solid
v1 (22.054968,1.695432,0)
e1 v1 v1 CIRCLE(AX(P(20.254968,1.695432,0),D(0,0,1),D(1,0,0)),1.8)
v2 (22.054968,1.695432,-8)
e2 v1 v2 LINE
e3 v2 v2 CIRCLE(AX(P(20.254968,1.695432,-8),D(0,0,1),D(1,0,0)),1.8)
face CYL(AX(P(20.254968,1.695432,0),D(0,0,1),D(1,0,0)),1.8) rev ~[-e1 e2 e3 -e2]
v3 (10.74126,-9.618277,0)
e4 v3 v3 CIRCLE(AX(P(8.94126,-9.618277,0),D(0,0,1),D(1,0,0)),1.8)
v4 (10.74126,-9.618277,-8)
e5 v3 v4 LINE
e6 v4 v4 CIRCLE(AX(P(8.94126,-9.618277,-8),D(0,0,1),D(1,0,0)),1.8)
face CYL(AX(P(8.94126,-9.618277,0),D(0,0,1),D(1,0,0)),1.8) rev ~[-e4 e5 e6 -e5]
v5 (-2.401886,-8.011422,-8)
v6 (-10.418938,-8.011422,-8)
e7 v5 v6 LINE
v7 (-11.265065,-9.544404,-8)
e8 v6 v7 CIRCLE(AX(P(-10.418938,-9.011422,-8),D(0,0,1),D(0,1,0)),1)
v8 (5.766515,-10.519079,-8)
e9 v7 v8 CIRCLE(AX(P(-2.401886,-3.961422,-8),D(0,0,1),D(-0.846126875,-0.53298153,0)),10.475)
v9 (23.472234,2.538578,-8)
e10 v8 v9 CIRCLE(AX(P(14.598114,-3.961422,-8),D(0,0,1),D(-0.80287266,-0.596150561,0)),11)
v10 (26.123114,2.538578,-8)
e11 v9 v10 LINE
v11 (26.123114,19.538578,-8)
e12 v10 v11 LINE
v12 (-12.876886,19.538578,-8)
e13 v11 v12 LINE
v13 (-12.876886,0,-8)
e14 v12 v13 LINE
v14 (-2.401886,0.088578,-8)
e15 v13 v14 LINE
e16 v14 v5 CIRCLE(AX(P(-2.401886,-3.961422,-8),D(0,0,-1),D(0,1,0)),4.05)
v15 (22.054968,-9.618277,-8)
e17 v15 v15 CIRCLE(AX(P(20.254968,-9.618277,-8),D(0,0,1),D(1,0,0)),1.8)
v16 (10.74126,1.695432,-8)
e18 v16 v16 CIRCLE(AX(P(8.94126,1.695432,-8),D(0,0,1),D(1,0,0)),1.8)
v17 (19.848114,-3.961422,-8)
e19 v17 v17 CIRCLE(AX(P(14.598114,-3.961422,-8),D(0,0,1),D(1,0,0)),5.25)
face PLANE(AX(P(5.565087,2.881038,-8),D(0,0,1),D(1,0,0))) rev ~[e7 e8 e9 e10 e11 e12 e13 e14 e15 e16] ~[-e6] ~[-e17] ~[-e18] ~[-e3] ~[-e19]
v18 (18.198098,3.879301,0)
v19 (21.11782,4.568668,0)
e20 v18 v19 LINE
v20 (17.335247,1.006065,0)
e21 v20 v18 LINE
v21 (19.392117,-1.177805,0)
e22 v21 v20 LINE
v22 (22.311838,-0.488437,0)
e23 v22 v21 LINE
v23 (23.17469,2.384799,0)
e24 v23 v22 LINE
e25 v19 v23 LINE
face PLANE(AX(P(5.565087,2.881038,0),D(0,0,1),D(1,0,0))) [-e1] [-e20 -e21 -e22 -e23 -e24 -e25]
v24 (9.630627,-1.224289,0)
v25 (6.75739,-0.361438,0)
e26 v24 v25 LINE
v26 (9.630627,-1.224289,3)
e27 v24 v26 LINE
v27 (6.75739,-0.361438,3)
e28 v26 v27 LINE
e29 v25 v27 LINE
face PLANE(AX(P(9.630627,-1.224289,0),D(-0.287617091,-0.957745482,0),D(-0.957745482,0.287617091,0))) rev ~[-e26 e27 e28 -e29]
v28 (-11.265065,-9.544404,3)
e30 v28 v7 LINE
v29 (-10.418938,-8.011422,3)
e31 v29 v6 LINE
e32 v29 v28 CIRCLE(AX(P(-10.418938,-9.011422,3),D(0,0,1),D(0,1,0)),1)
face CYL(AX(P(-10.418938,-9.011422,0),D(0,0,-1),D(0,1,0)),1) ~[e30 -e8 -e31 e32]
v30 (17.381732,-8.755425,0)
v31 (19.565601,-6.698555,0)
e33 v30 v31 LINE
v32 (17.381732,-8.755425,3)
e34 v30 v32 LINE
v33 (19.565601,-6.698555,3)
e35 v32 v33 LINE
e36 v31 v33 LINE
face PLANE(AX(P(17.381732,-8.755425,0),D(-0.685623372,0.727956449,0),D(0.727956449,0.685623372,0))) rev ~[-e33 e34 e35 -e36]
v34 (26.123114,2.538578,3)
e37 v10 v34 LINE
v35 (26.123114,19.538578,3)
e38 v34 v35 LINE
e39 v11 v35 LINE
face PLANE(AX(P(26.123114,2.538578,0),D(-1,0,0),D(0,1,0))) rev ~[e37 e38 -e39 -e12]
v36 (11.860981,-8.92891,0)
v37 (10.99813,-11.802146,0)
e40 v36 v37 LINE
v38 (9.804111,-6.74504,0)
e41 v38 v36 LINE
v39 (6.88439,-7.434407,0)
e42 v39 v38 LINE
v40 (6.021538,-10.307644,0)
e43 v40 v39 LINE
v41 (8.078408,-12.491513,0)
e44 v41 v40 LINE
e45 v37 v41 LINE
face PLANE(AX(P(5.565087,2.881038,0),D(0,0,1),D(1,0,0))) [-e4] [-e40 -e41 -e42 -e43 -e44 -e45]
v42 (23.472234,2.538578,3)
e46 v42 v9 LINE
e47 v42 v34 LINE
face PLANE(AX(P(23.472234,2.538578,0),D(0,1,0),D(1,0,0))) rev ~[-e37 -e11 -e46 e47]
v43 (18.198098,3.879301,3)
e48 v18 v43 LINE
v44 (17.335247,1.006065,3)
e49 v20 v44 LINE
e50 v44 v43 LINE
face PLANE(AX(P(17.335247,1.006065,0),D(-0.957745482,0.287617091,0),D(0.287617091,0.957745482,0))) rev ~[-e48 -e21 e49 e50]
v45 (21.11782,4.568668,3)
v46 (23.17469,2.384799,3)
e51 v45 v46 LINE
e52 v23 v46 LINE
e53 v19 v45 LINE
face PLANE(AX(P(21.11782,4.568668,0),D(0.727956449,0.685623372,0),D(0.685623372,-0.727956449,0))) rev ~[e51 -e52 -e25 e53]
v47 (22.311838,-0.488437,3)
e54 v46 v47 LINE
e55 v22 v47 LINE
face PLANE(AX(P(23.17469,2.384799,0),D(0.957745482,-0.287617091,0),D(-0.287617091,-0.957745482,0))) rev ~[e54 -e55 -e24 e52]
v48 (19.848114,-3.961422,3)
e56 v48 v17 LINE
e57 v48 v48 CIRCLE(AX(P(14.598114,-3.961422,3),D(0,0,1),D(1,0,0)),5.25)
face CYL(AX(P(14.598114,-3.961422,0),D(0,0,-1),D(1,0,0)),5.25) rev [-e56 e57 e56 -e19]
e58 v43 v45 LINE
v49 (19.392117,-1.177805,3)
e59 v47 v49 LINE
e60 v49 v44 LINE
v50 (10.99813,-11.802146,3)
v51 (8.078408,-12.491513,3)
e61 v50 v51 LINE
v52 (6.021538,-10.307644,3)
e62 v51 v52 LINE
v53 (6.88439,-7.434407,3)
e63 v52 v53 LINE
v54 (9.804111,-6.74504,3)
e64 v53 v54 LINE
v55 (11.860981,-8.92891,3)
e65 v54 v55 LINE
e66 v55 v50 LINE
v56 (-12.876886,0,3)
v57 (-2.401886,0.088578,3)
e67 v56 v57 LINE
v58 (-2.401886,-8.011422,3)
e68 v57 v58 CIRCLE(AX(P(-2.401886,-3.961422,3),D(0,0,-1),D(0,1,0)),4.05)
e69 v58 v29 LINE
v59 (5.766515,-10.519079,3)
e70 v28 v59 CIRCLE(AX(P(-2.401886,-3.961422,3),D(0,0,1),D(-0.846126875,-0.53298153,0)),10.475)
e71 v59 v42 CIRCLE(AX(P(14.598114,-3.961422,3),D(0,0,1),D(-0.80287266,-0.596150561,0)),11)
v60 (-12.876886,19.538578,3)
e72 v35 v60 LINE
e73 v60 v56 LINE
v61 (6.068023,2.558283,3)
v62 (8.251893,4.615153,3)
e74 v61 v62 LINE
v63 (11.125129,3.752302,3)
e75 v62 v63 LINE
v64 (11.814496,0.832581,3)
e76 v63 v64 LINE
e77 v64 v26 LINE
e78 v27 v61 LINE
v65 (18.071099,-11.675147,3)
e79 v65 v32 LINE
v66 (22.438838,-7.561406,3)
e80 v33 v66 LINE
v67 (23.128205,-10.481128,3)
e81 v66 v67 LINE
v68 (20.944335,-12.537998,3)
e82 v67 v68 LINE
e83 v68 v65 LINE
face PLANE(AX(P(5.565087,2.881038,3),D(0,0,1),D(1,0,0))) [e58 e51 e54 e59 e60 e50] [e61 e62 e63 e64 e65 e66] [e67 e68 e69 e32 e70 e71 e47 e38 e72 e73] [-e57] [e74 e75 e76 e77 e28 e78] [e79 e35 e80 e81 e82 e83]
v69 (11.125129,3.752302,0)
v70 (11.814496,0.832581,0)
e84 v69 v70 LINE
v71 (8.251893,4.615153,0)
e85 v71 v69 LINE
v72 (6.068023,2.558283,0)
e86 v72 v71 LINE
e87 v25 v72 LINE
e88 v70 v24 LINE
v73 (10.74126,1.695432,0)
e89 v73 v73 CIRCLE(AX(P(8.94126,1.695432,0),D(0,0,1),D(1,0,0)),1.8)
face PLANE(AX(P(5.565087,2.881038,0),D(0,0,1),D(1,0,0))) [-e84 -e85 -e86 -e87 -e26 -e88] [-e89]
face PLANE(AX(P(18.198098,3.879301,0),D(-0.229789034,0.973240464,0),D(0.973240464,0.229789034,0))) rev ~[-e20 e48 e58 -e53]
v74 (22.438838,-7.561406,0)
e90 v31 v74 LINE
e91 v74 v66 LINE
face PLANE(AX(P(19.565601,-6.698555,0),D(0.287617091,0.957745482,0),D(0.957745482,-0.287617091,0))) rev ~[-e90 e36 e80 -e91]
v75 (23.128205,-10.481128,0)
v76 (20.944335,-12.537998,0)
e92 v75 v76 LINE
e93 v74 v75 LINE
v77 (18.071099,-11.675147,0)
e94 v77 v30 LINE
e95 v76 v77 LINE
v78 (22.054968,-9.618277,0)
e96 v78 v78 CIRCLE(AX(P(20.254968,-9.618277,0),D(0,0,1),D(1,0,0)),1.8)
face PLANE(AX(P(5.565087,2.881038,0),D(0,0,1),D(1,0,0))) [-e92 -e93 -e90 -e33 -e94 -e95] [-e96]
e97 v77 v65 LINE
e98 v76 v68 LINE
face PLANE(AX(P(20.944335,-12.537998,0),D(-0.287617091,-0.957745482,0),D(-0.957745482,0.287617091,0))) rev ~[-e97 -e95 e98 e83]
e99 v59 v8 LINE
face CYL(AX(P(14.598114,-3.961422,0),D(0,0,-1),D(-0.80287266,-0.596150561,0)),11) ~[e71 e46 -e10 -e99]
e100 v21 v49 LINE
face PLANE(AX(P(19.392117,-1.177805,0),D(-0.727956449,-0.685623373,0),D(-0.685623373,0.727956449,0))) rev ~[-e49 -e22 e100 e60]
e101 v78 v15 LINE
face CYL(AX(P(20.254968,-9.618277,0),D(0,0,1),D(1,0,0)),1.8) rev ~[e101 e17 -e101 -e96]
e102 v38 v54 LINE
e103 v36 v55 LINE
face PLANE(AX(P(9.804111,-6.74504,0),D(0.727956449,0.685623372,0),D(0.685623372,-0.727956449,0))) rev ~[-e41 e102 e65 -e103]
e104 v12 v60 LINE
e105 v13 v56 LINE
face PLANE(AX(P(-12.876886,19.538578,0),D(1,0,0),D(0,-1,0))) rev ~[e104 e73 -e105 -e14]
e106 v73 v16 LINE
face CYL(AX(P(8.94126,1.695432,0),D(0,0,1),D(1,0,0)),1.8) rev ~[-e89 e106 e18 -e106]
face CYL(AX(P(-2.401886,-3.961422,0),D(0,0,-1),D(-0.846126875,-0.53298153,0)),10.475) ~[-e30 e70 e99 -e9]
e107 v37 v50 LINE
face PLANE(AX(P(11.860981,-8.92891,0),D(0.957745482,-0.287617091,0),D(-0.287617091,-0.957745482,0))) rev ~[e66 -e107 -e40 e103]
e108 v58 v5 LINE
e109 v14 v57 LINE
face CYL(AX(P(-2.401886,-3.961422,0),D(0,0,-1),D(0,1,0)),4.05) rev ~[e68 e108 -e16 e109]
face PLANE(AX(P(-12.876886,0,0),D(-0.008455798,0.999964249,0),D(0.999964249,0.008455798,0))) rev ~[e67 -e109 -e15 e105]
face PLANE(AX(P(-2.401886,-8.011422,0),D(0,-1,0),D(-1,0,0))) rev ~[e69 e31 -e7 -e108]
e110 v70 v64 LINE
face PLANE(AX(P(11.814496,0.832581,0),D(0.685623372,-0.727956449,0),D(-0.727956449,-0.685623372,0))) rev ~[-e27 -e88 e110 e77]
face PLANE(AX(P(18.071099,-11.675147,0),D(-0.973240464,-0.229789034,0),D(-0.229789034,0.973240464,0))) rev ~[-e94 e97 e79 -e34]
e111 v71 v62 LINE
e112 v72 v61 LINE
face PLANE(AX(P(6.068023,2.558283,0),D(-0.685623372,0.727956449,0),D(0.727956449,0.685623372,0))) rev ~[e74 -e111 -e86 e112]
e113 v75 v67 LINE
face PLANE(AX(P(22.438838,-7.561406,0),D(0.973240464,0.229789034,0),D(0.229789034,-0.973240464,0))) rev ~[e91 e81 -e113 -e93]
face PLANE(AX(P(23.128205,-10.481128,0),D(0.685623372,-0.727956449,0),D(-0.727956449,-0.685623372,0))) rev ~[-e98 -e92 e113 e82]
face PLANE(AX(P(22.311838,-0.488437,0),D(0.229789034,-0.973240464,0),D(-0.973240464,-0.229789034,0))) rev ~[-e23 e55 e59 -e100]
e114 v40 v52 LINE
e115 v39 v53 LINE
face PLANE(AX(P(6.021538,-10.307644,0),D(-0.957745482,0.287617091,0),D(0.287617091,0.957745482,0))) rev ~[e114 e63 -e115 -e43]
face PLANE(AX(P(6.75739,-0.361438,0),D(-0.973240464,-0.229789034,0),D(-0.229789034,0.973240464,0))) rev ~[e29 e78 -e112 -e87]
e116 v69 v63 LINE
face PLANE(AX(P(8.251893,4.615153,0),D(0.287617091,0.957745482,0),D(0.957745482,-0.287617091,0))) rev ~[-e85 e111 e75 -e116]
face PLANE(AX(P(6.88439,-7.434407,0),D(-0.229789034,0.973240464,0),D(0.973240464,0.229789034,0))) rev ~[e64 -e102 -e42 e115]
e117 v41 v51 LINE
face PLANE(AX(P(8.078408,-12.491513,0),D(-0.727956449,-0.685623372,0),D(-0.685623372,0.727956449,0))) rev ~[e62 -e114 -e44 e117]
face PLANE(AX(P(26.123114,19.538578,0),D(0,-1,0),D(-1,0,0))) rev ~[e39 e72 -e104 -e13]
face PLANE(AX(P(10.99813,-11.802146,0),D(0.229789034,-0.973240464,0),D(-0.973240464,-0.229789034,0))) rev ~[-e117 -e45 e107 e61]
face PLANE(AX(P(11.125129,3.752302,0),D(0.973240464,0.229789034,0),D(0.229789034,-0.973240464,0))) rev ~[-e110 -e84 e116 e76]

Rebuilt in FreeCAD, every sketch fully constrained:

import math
import FreeCAD as App
import Part
import Sketcher

V = App.Vector


def add_polygon(sketch, points):
    """Adds a closed chain of lines whose ends are joined by coincident constraints."""
    first, n = sketch.GeometryCount, len(points)
    for a, b in zip(points, points[1:] + points[:1]):
        sketch.addGeometry(Part.LineSegment(App.Vector(*a, 0), App.Vector(*b, 0)), False)
    for i in range(n):
        sketch.addConstraint(Sketcher.Constraint("Coincident", first + i, 2, first + (i + 1) % n, 1))

doc = App.newDocument("Part")
params = doc.addObject("Spreadsheet::Sheet", "Params")
for row, (alias, value) in enumerate([
    ("sketch1_radius", "1 mm"),
    ("sketch1_radius2", "11 mm"),
    ("sketch1_diameter", "3.6 mm"),
    ("sketch1_diameter2", "10.5 mm"),
    ("sketch1_width", "39 mm"),
    ("pad1_length", "8 mm"),
    ("sketch2_radius", "1 mm"),
    ("sketch2_radius2", "11 mm"),
    ("sketch2_diameter", "10.5 mm"),
    ("sketch2_width", "39 mm"),
    ("sketch2_height", "17 mm"),
    ("pad2_length", "3 mm"),
], start=1):
    params.set(f"A{row}", alias)
    params.set(f"B{row}", "=" + value)
    params.setAlias(f"B{row}", alias)

body = doc.addObject("PartDesign::Body", "Body")

# Sketch on XY plane
sketch1 = body.newObject("Sketcher::SketchObject", "Sketch")
sketch1.AttachmentSupport = (doc.getObject("XY_Plane"), [""])
sketch1.MapMode = "FlatFace"
sketch1.addGeometry([
    Part.LineSegment(V(26.1, 19.5, 0), V(-12.9, 19.5, 0)),  # 0
    Part.LineSegment(V(-12.9, 19.5, 0), V(-12.9, 0, 0)),  # 1
    Part.LineSegment(V(-12.9, 0, 0), V(-2.4, 0.1, 0)),  # 2
    Part.ArcOfCircle(Part.Circle(V(-2.4, -4, 0), V(0, 0, 1), 4), math.radians(-90), math.radians(90)),  # 3
    Part.LineSegment(V(-2.4, -8, 0), V(-10.4, -8, 0)),  # 4
    Part.ArcOfCircle(Part.Circle(V(-10.4, -9, 0), V(0, 0, 1), 1), math.radians(90), math.radians(212)),  # 5
    Part.ArcOfCircle(Part.Circle(V(-2.4, -4, 0), V(0, 0, 1), 10.5), math.radians(-148), math.radians(-39)),  # 6
    Part.ArcOfCircle(Part.Circle(V(14.6, -4, 0), V(0, 0, 1), 11), math.radians(-143), math.radians(36)),  # 7
    Part.LineSegment(V(23.5, 2.5, 0), V(26.1, 2.5, 0)),  # 8
    Part.LineSegment(V(26.1, 2.5, 0), V(26.1, 19.5, 0)),  # 9
    Part.Circle(V(8.9, -9.6, 0), V(0, 0, 1), 1.8),  # 10
    Part.Circle(V(20.3, -9.6, 0), V(0, 0, 1), 1.8),  # 11
    Part.Circle(V(8.9, 1.7, 0), V(0, 0, 1), 1.8),  # 12
    Part.Circle(V(14.6, -4, 0), V(0, 0, 1), 5.2),  # 13
    Part.Circle(V(20.3, 1.7, 0), V(0, 0, 1), 1.8),  # 14
], False)
sketch1.addConstraint([
    Sketcher.Constraint("Coincident", 0, 2, 1, 1),
    Sketcher.Constraint("Coincident", 1, 2, 2, 1),
    Sketcher.Constraint("Coincident", 2, 2, 3, 2),
    Sketcher.Constraint("Tangent", 3, 1, 4, 1),
    Sketcher.Constraint("Tangent", 4, 2, 5, 1),
    Sketcher.Constraint("Tangent", 5, 2, 6, 1),
    Sketcher.Constraint("Coincident", 6, 2, 7, 1),
    Sketcher.Constraint("Coincident", 7, 2, 8, 1),
    Sketcher.Constraint("Coincident", 8, 2, 9, 1),
    Sketcher.Constraint("Coincident", 9, 2, 0, 1),
    Sketcher.Constraint("Horizontal", 0),
    Sketcher.Constraint("Vertical", 1),
    Sketcher.Constraint("Horizontal", 4),
    Sketcher.Constraint("Horizontal", 8),
    Sketcher.Constraint("Vertical", 9),
    Sketcher.Constraint("Coincident", 6, 3, 3, 3),
    Sketcher.Constraint("Coincident", 13, 3, 7, 3),
    Sketcher.Constraint("Equal", 10, 11),
    Sketcher.Constraint("Equal", 11, 12),
    Sketcher.Constraint("Equal", 12, 14),
    Sketcher.Constraint("PointOnObject", 1, 2, -1),
    Sketcher.Constraint("Horizontal", 6, 3, 7, 3),
    Sketcher.Constraint("Horizontal", 10, 3, 11, 3),
    Sketcher.Constraint("Horizontal", 12, 3, 14, 3),
    Sketcher.Constraint("Vertical", 10, 3, 12, 3),
    Sketcher.Constraint("Vertical", 11, 3, 14, 3),
    Sketcher.Constraint("Vertical", 6, 3, 2, 2),
    Sketcher.Constraint("Radius", 5, 1.0),
    Sketcher.Constraint("Radius", 7, 11.0),
    Sketcher.Constraint("Diameter", 10, 3.6),
    Sketcher.Constraint("Diameter", 13, 10.5),
    Sketcher.Constraint("DistanceX", 0, 2, 0, 1, 39.0),
    Sketcher.Constraint("DistanceY", 9, 1, 9, 2, 17.0),
    Sketcher.Constraint("Radius", 3, 4.05),
    Sketcher.Constraint("Radius", 6, 10.475),
    Sketcher.Constraint("DistanceX", 3, 3, 7, 3, 17.0),
    Sketcher.Constraint("DistanceY", 6, 3, 0, 2, 23.5),
    Sketcher.Constraint("DistanceX", 0, 2, 6, 3, 10.475),
    Sketcher.Constraint("DistanceY", 6, 2, 10, 3, 0.900802),
    Sketcher.Constraint("DistanceY", 1, 2, 1, 1, 19.538578),
    Sketcher.Constraint("DistanceX", 5, 3, -1, 1, 10.418938),
    Sketcher.Constraint("DistanceX", -1, 1, 10, 3, 8.94126),
    Sketcher.Constraint("DistanceX", -1, 1, 11, 3, 20.254968),
    Sketcher.Constraint("DistanceY", -1, 1, 12, 3, 1.695432),
])
sketch1.setExpression("Constraints[27]", "Params.sketch1_radius")
sketch1.setExpression("Constraints[28]", "Params.sketch1_radius2")
sketch1.setExpression("Constraints[29]", "Params.sketch1_diameter")
sketch1.setExpression("Constraints[30]", "Params.sketch1_diameter2")
sketch1.setExpression("Constraints[31]", "Params.sketch1_width")
pad1 = body.newObject("PartDesign::Pad", "Pad")
pad1.Profile = sketch1
pad1.setExpression("Length", "Params.pad1_length")
pad1.Reversed = True

# Sketch on XY plane
sketch2 = body.newObject("Sketcher::SketchObject", "Sketch001")
sketch2.AttachmentSupport = (doc.getObject("XY_Plane"), [""])
sketch2.MapMode = "FlatFace"
sketch2.addGeometry(Part.LineSegment(V(23.5, 2.5, 0), V(26.1, 2.5, 0)), False)  # 0
sketch2.addGeometry(Part.LineSegment(V(26.1, 2.5, 0), V(26.1, 19.5, 0)), False)  # 1
sketch2.addGeometry(Part.LineSegment(V(26.1, 19.5, 0), V(-12.9, 19.5, 0)), False)  # 2
sketch2.addGeometry(Part.LineSegment(V(-12.9, 19.5, 0), V(-12.9, 0, 0)), False)  # 3
sketch2.addGeometry(Part.LineSegment(V(-12.9, 0, 0), V(-2.4, 0.1, 0)), False)  # 4
sketch2.addGeometry(Part.ArcOfCircle(Part.Circle(V(-2.4, -4, 0), V(0, 0, 1), 4), math.radians(-90), math.radians(90)), False)  # 5
sketch2.addGeometry(Part.LineSegment(V(-2.4, -8, 0), V(-10.4, -8, 0)), False)  # 6
sketch2.addGeometry(Part.ArcOfCircle(Part.Circle(V(-10.4, -9, 0), V(0, 0, 1), 1), math.radians(90), math.radians(212)), False)  # 7
sketch2.addGeometry(Part.ArcOfCircle(Part.Circle(V(-2.4, -4, 0), V(0, 0, 1), 10.5), math.radians(-148), math.radians(-39)), False)  # 8
sketch2.addGeometry(Part.ArcOfCircle(Part.Circle(V(14.6, -4, 0), V(0, 0, 1), 11), math.radians(-143), math.radians(36)), False)  # 9
add_polygon(sketch2, [(11.9, -8.9), (11, -11.8), (8.1, -12.5), (6, -10.3), (6.9, -7.4), (9.8, -6.7)])  # lines 10-15
add_polygon(sketch2, [(17.4, -8.8), (19.6, -6.7), (22.4, -7.6), (23.1, -10.5), (20.9, -12.5), (18.1, -11.7)])  # lines 16-21
sketch2.addGeometry(Part.Circle(V(14.6, -4, 0), V(0, 0, 1), 5.2), False)  # 22
add_polygon(sketch2, [(9.6, -1.2), (6.8, -0.4), (6.1, 2.6), (8.3, 4.6), (11.1, 3.8), (11.8, 0.8)])  # lines 23-28
add_polygon(sketch2, [(17.3, 1), (18.2, 3.9), (21.1, 4.6), (23.2, 2.4), (22.3, -0.5), (19.4, -1.2)])  # lines 29-34
sketch2.addConstraint([
    Sketcher.Constraint("Coincident", 0, 2, 1, 1),
    Sketcher.Constraint("Coincident", 1, 2, 2, 1),
    Sketcher.Constraint("Coincident", 2, 2, 3, 1),
    Sketcher.Constraint("Coincident", 3, 2, 4, 1),
    Sketcher.Constraint("Coincident", 4, 2, 5, 2),
    Sketcher.Constraint("Tangent", 5, 1, 6, 1),
    Sketcher.Constraint("Tangent", 6, 2, 7, 1),
    Sketcher.Constraint("Tangent", 7, 2, 8, 1),
    Sketcher.Constraint("Coincident", 8, 2, 9, 1),
    Sketcher.Constraint("Coincident", 9, 2, 0, 1),
    Sketcher.Constraint("Horizontal", 0),
    Sketcher.Constraint("Vertical", 1),
    Sketcher.Constraint("Horizontal", 2),
    Sketcher.Constraint("Vertical", 3),
    Sketcher.Constraint("Horizontal", 6),
    Sketcher.Constraint("Coincident", 8, 3, 5, 3),
    Sketcher.Constraint("Coincident", 22, 3, 9, 3),
    Sketcher.Constraint("PointOnObject", 3, 2, -1),
    Sketcher.Constraint("Parallel", 10, 13),
    Sketcher.Constraint("Parallel", 11, 14),
    Sketcher.Constraint("Parallel", 12, 15),
    Sketcher.Constraint("Perpendicular", 15, 16),
    Sketcher.Constraint("Perpendicular", 13, 17),
    Sketcher.Constraint("Perpendicular", 14, 18),
    Sketcher.Constraint("Parallel", 16, 19),
    Sketcher.Constraint("Parallel", 17, 20),
    Sketcher.Constraint("Parallel", 18, 21),
    Sketcher.Constraint("Parallel", 20, 23),
    Sketcher.Constraint("Parallel", 21, 24),
    Sketcher.Constraint("Parallel", 19, 25),
    Sketcher.Constraint("Parallel", 23, 26),
    Sketcher.Constraint("Parallel", 24, 27),
    Sketcher.Constraint("Parallel", 25, 28),
    Sketcher.Constraint("Perpendicular", 26, 29),
    Sketcher.Constraint("Perpendicular", 27, 30),
    Sketcher.Constraint("Perpendicular", 28, 31),
    Sketcher.Constraint("Parallel", 29, 32),
    Sketcher.Constraint("Parallel", 30, 33),
    Sketcher.Constraint("Parallel", 31, 34),
    Sketcher.Constraint("Horizontal", 8, 3, 9, 3),
    Sketcher.Constraint("Vertical", 8, 3, 4, 2),
    Sketcher.Constraint("Equal", 10, 11),
    Sketcher.Constraint("Equal", 11, 12),
    Sketcher.Constraint("Equal", 12, 13),
    Sketcher.Constraint("Equal", 15, 16),
    Sketcher.Constraint("Equal", 16, 17),
    Sketcher.Constraint("Equal", 17, 18),
    Sketcher.Constraint("Equal", 18, 19),
    Sketcher.Constraint("Equal", 21, 23),
    Sketcher.Constraint("Equal", 23, 24),
    Sketcher.Constraint("Equal", 24, 25),
    Sketcher.Constraint("Equal", 25, 26),
    Sketcher.Constraint("Equal", 28, 29),
    Sketcher.Constraint("Equal", 29, 30),
    Sketcher.Constraint("Equal", 30, 31),
    Sketcher.Constraint("Equal", 31, 32),
    Sketcher.Constraint("Radius", 7, 1.0),
    Sketcher.Constraint("Radius", 9, 11.0),
    Sketcher.Constraint("Diameter", 22, 10.5),
    Sketcher.Constraint("DistanceX", 2, 2, 2, 1, 39.0),
    Sketcher.Constraint("DistanceY", 1, 1, 1, 2, 17.0),
    Sketcher.Constraint("Radius", 5, 4.05),
    Sketcher.Constraint("Distance", 10, 3.0),
    Sketcher.Constraint("Radius", 8, 10.475),
    Sketcher.Constraint("DistanceX", 5, 3, 9, 3, 17.0),
    Sketcher.Constraint("DistanceY", 9, 3, 0, 2, 6.5),
    Sketcher.Constraint("DistanceX", 9, 3, 0, 2, 11.525),
    Sketcher.Constraint("DistanceX", 23, 2, 13, 2, 0.126999),
    Sketcher.Constraint("DistanceY", 26, 2, 29, 2, 0.126999),
    Sketcher.Constraint("DistanceX", -1, 1, 16, 2, 19.565601),
    Sketcher.Constraint("DistanceX", -1, 1, 20, 2, 18.071099),
    Sketcher.Constraint("DistanceX", -1, 1, 29, 2, 18.198098),
    Sketcher.Constraint("DistanceY", -1, 1, 29, 2, 3.879301),
    Sketcher.Constraint("DistanceY", 14, 2, 23, 2, 6.383602),
    Sketcher.Constraint("DistanceX", 27, 2, 29, 2, 6.383602),
    Sketcher.Constraint("DistanceY", 3, 2, 3, 1, 19.538578),
    Sketcher.Constraint("DistanceX", 7, 3, -1, 1, 10.418938),
    Sketcher.Constraint("DistanceX", -1, 1, 10, 2, 10.99813),
    Sketcher.Constraint("DistanceX", -1, 1, 11, 2, 8.078408),
    Sketcher.Constraint("DistanceY", 10, 2, 16, 2, 5.103591),
])
sketch2.setExpression("Constraints[80]", "Params.sketch2_radius")
sketch2.setExpression("Constraints[81]", "Params.sketch2_radius2")
sketch2.setExpression("Constraints[82]", "Params.sketch2_diameter")
sketch2.setExpression("Constraints[83]", "Params.sketch2_width")
sketch2.setExpression("Constraints[84]", "Params.sketch2_height")
pad2 = body.newObject("PartDesign::Pad", "Pad001")
pad2.Profile = sketch2
pad2.setExpression("Length", "Params.pad2_length")

doc.recompute()
